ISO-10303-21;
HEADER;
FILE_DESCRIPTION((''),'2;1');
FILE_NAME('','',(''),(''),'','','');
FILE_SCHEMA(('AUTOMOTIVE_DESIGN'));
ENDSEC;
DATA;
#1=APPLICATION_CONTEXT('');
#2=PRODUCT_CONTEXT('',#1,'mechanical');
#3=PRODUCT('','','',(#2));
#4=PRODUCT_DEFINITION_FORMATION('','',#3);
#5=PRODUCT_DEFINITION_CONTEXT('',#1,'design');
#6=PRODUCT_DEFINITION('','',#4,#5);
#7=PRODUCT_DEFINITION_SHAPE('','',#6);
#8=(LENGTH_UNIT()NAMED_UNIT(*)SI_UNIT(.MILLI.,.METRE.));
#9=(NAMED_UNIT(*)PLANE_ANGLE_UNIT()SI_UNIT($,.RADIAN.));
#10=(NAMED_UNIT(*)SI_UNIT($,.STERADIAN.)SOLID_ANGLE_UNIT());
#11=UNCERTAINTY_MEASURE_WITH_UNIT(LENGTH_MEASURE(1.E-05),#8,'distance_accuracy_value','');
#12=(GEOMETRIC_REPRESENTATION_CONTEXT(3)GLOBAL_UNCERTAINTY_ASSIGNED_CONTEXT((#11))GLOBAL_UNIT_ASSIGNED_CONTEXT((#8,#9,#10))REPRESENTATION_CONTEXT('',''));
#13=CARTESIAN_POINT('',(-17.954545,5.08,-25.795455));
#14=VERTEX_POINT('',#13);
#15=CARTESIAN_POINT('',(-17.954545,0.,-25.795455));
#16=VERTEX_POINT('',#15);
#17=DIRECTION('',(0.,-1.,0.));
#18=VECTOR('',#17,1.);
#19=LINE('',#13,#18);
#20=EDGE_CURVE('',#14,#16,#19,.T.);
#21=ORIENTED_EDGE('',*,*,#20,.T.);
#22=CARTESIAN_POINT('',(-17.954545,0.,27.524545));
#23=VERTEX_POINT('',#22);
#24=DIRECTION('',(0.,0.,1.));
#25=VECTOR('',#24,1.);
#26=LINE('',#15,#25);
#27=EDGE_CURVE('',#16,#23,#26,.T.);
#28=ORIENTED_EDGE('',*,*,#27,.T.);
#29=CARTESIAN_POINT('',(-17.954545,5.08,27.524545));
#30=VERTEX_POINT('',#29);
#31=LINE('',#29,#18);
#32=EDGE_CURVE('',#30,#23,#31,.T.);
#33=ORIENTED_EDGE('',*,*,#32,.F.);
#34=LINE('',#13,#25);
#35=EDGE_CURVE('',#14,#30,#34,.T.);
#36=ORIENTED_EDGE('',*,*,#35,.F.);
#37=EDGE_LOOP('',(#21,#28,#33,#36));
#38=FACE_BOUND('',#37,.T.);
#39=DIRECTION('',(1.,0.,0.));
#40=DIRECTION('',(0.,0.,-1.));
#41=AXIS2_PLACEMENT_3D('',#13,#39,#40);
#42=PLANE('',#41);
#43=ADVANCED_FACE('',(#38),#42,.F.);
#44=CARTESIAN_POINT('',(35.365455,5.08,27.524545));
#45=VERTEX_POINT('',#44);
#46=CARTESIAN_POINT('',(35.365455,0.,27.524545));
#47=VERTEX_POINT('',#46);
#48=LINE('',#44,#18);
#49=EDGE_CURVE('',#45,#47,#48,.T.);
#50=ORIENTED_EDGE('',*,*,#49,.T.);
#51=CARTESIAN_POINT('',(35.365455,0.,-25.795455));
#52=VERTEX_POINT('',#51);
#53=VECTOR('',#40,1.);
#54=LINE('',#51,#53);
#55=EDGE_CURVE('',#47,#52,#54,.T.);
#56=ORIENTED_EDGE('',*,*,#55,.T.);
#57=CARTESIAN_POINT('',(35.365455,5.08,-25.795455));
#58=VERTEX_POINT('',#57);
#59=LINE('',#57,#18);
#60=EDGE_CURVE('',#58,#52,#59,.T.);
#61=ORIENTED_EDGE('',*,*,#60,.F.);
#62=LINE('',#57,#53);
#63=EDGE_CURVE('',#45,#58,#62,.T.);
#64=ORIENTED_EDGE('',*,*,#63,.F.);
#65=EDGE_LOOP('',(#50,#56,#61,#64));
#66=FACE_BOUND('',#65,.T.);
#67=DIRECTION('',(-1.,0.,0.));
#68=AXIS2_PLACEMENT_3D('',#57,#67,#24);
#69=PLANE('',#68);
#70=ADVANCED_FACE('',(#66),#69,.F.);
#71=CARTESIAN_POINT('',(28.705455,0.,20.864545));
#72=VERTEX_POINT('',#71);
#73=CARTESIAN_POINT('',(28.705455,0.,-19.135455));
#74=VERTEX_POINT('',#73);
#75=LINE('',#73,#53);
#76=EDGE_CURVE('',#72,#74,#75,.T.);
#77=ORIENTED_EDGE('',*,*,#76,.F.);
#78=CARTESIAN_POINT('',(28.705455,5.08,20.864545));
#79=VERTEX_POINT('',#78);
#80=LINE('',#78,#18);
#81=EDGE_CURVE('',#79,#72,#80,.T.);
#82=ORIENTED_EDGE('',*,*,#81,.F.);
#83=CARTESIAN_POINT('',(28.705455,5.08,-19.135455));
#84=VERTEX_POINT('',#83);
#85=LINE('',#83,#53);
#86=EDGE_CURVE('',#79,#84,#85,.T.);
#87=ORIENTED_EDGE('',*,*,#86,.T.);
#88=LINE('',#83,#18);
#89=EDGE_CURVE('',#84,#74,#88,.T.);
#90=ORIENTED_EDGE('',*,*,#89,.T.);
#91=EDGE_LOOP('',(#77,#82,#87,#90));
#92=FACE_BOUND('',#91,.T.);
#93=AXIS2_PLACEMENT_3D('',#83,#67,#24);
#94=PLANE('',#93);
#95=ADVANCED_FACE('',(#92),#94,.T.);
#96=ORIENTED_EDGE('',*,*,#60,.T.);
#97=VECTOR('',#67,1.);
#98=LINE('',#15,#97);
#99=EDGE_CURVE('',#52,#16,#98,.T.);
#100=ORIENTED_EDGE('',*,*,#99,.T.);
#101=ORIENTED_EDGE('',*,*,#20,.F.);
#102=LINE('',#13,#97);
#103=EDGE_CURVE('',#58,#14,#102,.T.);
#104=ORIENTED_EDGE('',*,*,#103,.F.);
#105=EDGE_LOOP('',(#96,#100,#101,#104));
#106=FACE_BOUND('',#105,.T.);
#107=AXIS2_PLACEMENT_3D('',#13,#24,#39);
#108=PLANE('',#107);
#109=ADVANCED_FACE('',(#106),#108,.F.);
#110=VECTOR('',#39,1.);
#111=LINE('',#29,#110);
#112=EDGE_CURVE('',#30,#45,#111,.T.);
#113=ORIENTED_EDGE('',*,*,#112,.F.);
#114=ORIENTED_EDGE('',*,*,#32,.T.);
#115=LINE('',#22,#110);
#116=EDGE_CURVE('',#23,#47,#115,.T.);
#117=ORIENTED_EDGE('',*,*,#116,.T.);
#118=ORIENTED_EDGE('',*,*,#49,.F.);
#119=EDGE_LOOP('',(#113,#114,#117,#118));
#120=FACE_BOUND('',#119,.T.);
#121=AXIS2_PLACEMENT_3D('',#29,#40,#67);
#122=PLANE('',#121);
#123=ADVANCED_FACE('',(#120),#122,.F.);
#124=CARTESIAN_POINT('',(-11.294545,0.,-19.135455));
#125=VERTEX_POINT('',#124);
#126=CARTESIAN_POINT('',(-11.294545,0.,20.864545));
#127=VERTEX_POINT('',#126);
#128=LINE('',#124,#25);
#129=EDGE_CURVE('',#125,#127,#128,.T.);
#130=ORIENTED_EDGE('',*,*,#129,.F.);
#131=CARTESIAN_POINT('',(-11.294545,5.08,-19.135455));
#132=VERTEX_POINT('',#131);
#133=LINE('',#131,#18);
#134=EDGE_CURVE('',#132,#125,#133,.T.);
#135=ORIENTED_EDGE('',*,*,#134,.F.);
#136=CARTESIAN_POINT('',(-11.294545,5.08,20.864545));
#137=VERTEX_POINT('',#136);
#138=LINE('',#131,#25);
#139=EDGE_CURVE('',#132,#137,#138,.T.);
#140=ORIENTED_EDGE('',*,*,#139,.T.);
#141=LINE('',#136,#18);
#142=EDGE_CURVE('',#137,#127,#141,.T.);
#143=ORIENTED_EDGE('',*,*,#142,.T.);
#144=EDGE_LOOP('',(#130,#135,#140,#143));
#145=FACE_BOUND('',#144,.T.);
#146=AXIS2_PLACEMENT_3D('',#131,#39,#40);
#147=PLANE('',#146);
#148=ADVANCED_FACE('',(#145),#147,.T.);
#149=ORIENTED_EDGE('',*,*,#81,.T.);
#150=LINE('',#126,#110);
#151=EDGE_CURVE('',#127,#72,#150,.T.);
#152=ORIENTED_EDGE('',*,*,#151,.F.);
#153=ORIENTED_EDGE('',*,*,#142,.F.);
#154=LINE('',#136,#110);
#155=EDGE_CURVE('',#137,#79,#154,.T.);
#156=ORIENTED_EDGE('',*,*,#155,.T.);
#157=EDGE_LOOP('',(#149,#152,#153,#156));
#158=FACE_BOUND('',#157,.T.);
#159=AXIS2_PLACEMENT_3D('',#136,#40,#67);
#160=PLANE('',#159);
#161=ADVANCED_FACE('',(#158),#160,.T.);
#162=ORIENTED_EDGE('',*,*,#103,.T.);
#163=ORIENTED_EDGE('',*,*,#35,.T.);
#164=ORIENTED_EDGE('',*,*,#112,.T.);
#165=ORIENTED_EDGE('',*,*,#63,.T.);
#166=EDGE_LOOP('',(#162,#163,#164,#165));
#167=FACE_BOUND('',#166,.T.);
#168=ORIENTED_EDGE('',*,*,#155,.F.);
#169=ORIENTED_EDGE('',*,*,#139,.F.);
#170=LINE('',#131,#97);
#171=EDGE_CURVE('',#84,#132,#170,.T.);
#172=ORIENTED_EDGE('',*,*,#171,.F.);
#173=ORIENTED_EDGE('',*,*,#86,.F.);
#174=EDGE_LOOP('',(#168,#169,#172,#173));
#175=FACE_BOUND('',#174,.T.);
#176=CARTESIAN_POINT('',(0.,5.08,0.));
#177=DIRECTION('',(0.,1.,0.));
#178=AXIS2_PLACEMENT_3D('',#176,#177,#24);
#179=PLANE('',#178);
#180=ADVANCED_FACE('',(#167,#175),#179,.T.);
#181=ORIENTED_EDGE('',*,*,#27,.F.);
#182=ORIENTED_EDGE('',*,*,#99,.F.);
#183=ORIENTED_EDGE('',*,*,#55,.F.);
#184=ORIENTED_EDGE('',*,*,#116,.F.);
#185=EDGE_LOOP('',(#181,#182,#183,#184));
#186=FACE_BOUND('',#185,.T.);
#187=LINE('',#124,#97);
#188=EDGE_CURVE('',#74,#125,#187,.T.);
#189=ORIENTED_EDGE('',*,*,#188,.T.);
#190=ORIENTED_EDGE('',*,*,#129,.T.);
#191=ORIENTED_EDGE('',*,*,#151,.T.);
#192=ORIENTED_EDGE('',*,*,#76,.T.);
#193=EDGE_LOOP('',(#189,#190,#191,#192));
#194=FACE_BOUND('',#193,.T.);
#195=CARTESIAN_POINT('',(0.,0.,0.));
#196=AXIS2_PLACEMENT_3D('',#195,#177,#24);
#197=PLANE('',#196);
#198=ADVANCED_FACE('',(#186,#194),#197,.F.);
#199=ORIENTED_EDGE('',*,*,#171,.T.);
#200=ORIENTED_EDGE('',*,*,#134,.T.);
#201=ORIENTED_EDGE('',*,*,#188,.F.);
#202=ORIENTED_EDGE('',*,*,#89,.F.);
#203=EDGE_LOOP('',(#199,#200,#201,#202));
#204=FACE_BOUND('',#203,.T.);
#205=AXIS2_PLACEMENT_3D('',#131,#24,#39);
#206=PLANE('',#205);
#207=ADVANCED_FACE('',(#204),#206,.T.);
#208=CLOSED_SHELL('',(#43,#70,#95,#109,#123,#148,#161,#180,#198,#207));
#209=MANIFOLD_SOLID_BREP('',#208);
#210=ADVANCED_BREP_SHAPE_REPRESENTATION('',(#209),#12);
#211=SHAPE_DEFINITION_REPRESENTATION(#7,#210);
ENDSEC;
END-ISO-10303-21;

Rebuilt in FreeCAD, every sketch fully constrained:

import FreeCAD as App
import Part
import Sketcher

V = App.Vector
Q = App.Units.Quantity


def add_polygon(sketch, points):
    """Adds a closed chain of lines whose ends are joined by coincident constraints."""
    first, n = sketch.GeometryCount, len(points)
    for a, b in zip(points, points[1:] + points[:1]):
        sketch.addGeometry(Part.LineSegment(App.Vector(*a, 0), App.Vector(*b, 0)), False)
    for i in range(n):
        sketch.addConstraint(Sketcher.Constraint("Coincident", first + i, 2, first + (i + 1) % n, 1))

doc = App.newDocument("Part")
body = doc.addObject("PartDesign::Body", "Body")

# Sketch on XZ plane
sketch1 = body.newObject("Sketcher::SketchObject", "Sketch")
sketch1.AttachmentSupport = (doc.getObject("XZ_Plane"), [""])
sketch1.MapMode = "FlatFace"
add_polygon(sketch1, [(-18, -26), (-18, 28), (35, 28), (35, -26)])  # lines 0-3
add_polygon(sketch1, [(29, 21), (-11, 21), (-11, -19), (29, -19)])  # lines 4-7
sketch1.addConstraint([
    Sketcher.Constraint("Vertical", 0),
    Sketcher.Constraint("Horizontal", 1),
    Sketcher.Constraint("Vertical", 2),
    Sketcher.Constraint("Horizontal", 3),
    Sketcher.Constraint("Horizontal", 4),
    Sketcher.Constraint("Vertical", 5),
    Sketcher.Constraint("Horizontal", 6),
    Sketcher.Constraint("Vertical", 7),
    Sketcher.Constraint("Equal", 3, 0),
    Sketcher.Constraint("Equal", 6, 5),
    Sketcher.Constraint("DistanceX", 4, 2, 4, 1, Q("40 mm")),
    Sketcher.Constraint("DistanceX", 1, 1, 1, 2, Q("53.32 mm")),
    Sketcher.Constraint("DistanceX", 0, 2, 4, 2, Q("6.66 mm")),
    Sketcher.Constraint("DistanceY", 4, 2, 0, 2, Q("6.66 mm")),
    Sketcher.Constraint("DistanceX", 0, 2, -1, 1, Q("17.954545 mm")),
    Sketcher.Constraint("DistanceY", -1, 1, 0, 2, Q("27.524545 mm")),
])
pad1 = body.newObject("PartDesign::Pad", "Pad")
pad1.Profile = sketch1
pad1.Length = 5.08
pad1.Reversed = True

doc.recompute()
